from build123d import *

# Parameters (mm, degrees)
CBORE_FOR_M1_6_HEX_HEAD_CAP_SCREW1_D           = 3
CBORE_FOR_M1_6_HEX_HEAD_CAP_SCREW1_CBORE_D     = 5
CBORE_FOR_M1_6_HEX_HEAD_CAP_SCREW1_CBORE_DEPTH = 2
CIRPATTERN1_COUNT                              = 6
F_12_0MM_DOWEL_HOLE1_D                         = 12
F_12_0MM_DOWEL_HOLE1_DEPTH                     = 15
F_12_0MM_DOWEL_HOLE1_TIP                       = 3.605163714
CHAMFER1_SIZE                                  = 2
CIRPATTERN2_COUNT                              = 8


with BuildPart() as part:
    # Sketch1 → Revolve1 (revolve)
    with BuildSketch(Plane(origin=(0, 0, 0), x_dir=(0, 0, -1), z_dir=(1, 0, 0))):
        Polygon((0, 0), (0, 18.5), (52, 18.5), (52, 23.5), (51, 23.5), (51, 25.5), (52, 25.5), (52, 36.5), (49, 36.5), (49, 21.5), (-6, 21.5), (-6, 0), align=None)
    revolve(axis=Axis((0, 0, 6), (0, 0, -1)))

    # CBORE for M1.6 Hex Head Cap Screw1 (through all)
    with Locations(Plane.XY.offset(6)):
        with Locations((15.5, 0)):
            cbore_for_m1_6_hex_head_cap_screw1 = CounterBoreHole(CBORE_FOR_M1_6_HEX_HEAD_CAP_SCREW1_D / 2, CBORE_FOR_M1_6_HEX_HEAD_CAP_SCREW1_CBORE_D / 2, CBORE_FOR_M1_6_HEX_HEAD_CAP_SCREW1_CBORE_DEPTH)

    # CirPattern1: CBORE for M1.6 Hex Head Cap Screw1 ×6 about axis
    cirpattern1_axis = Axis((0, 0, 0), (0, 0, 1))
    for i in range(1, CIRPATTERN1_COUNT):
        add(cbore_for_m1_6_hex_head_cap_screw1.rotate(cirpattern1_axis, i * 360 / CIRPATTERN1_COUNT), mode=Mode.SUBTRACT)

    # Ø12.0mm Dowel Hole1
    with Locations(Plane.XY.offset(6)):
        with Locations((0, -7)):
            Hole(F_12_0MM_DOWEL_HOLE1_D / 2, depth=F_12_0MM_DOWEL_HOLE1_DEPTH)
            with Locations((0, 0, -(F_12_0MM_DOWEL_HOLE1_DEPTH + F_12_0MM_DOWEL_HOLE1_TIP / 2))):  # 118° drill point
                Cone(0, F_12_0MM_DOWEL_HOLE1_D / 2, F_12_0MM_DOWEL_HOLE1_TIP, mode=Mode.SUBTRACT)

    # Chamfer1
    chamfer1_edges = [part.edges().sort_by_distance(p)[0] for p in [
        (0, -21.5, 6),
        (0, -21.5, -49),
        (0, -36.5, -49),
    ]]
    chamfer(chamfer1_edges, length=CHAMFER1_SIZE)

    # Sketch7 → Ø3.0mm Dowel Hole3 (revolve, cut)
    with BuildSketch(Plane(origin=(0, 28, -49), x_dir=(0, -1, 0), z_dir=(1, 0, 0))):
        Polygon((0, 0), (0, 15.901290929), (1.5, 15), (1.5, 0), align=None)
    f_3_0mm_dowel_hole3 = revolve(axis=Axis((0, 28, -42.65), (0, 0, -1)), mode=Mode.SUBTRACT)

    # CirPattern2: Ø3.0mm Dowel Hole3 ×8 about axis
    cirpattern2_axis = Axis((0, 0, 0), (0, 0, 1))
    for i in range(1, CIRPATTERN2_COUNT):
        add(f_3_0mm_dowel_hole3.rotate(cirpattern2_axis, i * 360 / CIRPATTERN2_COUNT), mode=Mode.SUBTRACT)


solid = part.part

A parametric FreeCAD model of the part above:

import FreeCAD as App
import Part
import Sketcher
Q = App.Units.Quantity


def edges_at(feature, points):
    """Names of the edges that pass closest to the given points."""
    edges = feature.Shape.Edges
    near = lambda p: min(range(len(edges)), key=lambda i: edges[i].distToShape(Part.Vertex(*p))[0])
    return sorted({f"Edge{near(p) + 1}" for p in points})


def add_polygon(sketch, points):
    """Adds a closed chain of lines whose ends are joined by coincident constraints."""
    first, n = sketch.GeometryCount, len(points)
    for a, b in zip(points, points[1:] + points[:1]):
        sketch.addGeometry(Part.LineSegment(App.Vector(*a, 0), App.Vector(*b, 0)), False)
    for i in range(n):
        sketch.addConstraint(Sketcher.Constraint("Coincident", first + i, 2, first + (i + 1) % n, 1))

doc = App.newDocument("Part")
params = doc.addObject("Spreadsheet::Sheet", "Params")
for row, (alias, value) in enumerate([
    ("sketch1_width", "5 mm"),
    ("sketch1_width2", "2 mm"),
    ("sketch1_width3", "11 mm"),
    ("sketch1_width4", "15 mm"),
    ("sketch1_height", "52 mm"),
    ("revolution_angle", "360 deg"),
    ("sketch2_diameter", "3 mm"),
    ("hole_diameter", "3 mm"),
    ("hole_cbore_diameter", "5 mm"),
    ("hole_cbore_depth", "2 mm"),
    ("sketch3_diameter", "12 mm"),
    ("hole2_diameter", "12 mm"),
    ("hole2_depth", "15 mm"),
    ("chamfer_size", "2 mm"),
    ("sketch4_height", "15 mm"),
    ("sketch4_width", "1.5 mm"),
    ("groove_angle", "360 deg"),
], start=1):
    params.set(f"A{row}", alias)
    params.set(f"B{row}", "=" + value)
    params.setAlias(f"B{row}", alias)

body = doc.addObject("PartDesign::Body", "Body")

# Sketch on YZ plane
sketch1 = doc.addObject("Sketcher::SketchObject", "Sketch")
body.addObject(sketch1)
sketch1.AttachmentSupport = (doc.YZ_Plane, [""])
sketch1.MapMode = "FlatFace"
add_polygon(sketch1, [(0, 0), (18.5, 0), (18.5, -52), (23.5, -52), (23.5, -51), (25.5, -51), (25.5, -52), (36.5, -52), (36.5, -49), (21.5, -49), (21.5, 6), (0, 6)])  # lines 0-11
sketch1.addConstraint([
    Sketcher.Constraint("Horizontal", 0),
    Sketcher.Constraint("Vertical", 1),
    Sketcher.Constraint("Horizontal", 2),
    Sketcher.Constraint("Vertical", 3),
    Sketcher.Constraint("Horizontal", 4),
    Sketcher.Constraint("Vertical", 5),
    Sketcher.Constraint("Horizontal", 6),
    Sketcher.Constraint("Vertical", 7),
    Sketcher.Constraint("Horizontal", 8),
    Sketcher.Constraint("Vertical", 9),
    Sketcher.Constraint("Horizontal", 10),
    Sketcher.Constraint("Vertical", 11),
    Sketcher.Constraint("Coincident", 11, 2, -1, 1),
    Sketcher.Constraint("Horizontal", 2, 2, 5, 2),
    Sketcher.Constraint("DistanceX", 2, 1, 2, 2, Q("5 mm")),
    Sketcher.Constraint("DistanceX", 4, 1, 4, 2, Q("2 mm")),
    Sketcher.Constraint("DistanceX", 6, 1, 6, 2, Q("11 mm")),
    Sketcher.Constraint("DistanceX", 8, 2, 8, 1, Q("15 mm")),
    Sketcher.Constraint("DistanceY", 1, 2, 1, 1, Q("52 mm")),
    Sketcher.Constraint("DistanceY", 3, 1, 3, 2, Q("1 mm")),
    Sketcher.Constraint("DistanceY", 7, 1, 7, 2, Q("3 mm")),
    Sketcher.Constraint("DistanceY", 9, 1, 9, 2, Q("55 mm")),
    Sketcher.Constraint("DistanceX", 0, 1, 0, 2, Q("18.5 mm")),
])
sketch1.setExpression("Constraints[26]", "Params.sketch1_width")
sketch1.setExpression("Constraints[27]", "Params.sketch1_width2")
sketch1.setExpression("Constraints[28]", "Params.sketch1_width3")
sketch1.setExpression("Constraints[29]", "Params.sketch1_width4")
sketch1.setExpression("Constraints[30]", "Params.sketch1_height")
revolution = doc.addObject("PartDesign::Revolution", "Revolution")
body.addObject(revolution)
revolution.Profile = sketch1
revolution.ReferenceAxis = (sketch1, ["V_Axis"])
revolution.setExpression("Angle", "Params.revolution_angle")

# Sketch on XY plane
sketch2 = doc.addObject("Sketcher::SketchObject", "Sketch001")
body.addObject(sketch2)
sketch2.AttachmentSupport = (doc.XY_Plane, [""])
sketch2.MapMode = "FlatFace"
sketch2.AttachmentOffset = App.Placement(App.Vector(0, 0, 6), App.Rotation())
sketch2.addGeometry(Part.Circle(App.Vector(15.5, 0, 0), App.Vector(0, 0, 1), 1.5), False)
sketch2.addConstraint([
    Sketcher.Constraint("PointOnObject", 0, 3, -1),
    Sketcher.Constraint("Diameter", 0, Q("3 mm")),
    Sketcher.Constraint("DistanceX", -1, 1, 0, 3, Q("15.5 mm")),
])
sketch2.setExpression("Constraints[1]", "Params.sketch2_diameter")
doc.recompute()
hole = doc.addObject("PartDesign::Hole", "Hole")
body.addObject(hole)
hole.Profile = sketch2
hole.ThreadType = "None"
hole.setExpression("Diameter", "Params.hole_diameter")
hole.DepthType = "ThroughAll"
hole.HoleCutType = "Counterbore"
hole.setExpression("HoleCutDiameter", "Params.hole_cbore_diameter")
hole.setExpression("HoleCutDepth", "Params.hole_cbore_depth")
doc.recompute()

polarpattern = doc.addObject("PartDesign::PolarPattern", "PolarPattern")
body.addObject(polarpattern)
polarpattern.Originals = [hole]
polarpattern.Axis = (doc.Z_Axis, [""])
polarpattern.Angle = 360
polarpattern.Occurrences = 6
body.Tip = polarpattern

# Sketch on XY plane
sketch3 = doc.addObject("Sketcher::SketchObject", "Sketch002")
body.addObject(sketch3)
sketch3.AttachmentSupport = (doc.XY_Plane, [""])
sketch3.MapMode = "FlatFace"
sketch3.AttachmentOffset = App.Placement(App.Vector(0, 0, 6), App.Rotation())
sketch3.addGeometry(Part.Circle(App.Vector(0, -7, 0), App.Vector(0, 0, 1), 6), False)
sketch3.addConstraint([
    Sketcher.Constraint("PointOnObject", 0, 3, -2),
    Sketcher.Constraint("Diameter", 0, Q("12 mm")),
    Sketcher.Constraint("DistanceY", 0, 3, -1, 1, Q("7 mm")),
])
sketch3.setExpression("Constraints[1]", "Params.sketch3_diameter")
doc.recompute()
hole2 = doc.addObject("PartDesign::Hole", "Hole001")
body.addObject(hole2)
hole2.Profile = sketch3
hole2.ThreadType = "None"
hole2.setExpression("Diameter", "Params.hole2_diameter")
hole2.DepthType = "Dimension"
hole2.setExpression("Depth", "Params.hole2_depth")
hole2.DrillPoint = "Angled"
hole2.DrillPointAngle = 118
doc.recompute()

chamfer = doc.addObject("PartDesign::Chamfer", "Chamfer")
body.addObject(chamfer)
chamfer.Base = (hole2, edges_at(hole2, [(0, -21.5, 6), (0, -21.5, -49), (0, -36.5, -49)]))
chamfer.setExpression("Size", "Params.chamfer_size")

# Sketch on YZ plane
sketch4 = doc.addObject("Sketcher::SketchObject", "Sketch003")
body.addObject(sketch4)
sketch4.AttachmentSupport = (doc.YZ_Plane, [""])
sketch4.MapMode = "FlatFace"
add_polygon(sketch4, [(28, -64.901291), (28, -49), (26.5, -49), (26.5, -64)])  # lines 0-3
sketch4.addGeometry(Part.LineSegment(App.Vector(28, -49, 0), App.Vector(28, -64.901291, 0)), True)  # axis
sketch4.addConstraint([
    Sketcher.Constraint("Vertical", 0),
    Sketcher.Constraint("Horizontal", 1),
    Sketcher.Constraint("Vertical", 2),
    Sketcher.Constraint("Vertical", 4),
    Sketcher.Constraint("Coincident", 4, 1, 0, 2),
    Sketcher.Constraint("Equal", 0, 4),
    Sketcher.Constraint("DistanceY", 2, 2, 2, 1, Q("15 mm")),
    Sketcher.Constraint("Angle", 3, Q("-31 deg")),
    Sketcher.Constraint("DistanceX", 1, 2, 1, 1, Q("1.5 mm")),
    Sketcher.Constraint("DistanceX", -1, 1, 0, 2, Q("28 mm")),
    Sketcher.Constraint("DistanceY", 0, 2, -1, 1, Q("49 mm")),
])
sketch4.setExpression("Constraints[10]", "Params.sketch4_height")
sketch4.setExpression("Constraints[12]", "Params.sketch4_width")
groove = doc.addObject("PartDesign::Groove", "Groove")
body.addObject(groove)
groove.Profile = sketch4
groove.ReferenceAxis = (sketch4, ["Axis0"])
groove.setExpression("Angle", "Params.groove_angle")
doc.recompute()

polarpattern2 = doc.addObject("PartDesign::PolarPattern", "PolarPattern001")
body.addObject(polarpattern2)
polarpattern2.Originals = [groove]
polarpattern2.Axis = (doc.Z_Axis, [""])
polarpattern2.Angle = 360
polarpattern2.Occurrences = 8
body.Tip = polarpattern2

doc.recompute()
